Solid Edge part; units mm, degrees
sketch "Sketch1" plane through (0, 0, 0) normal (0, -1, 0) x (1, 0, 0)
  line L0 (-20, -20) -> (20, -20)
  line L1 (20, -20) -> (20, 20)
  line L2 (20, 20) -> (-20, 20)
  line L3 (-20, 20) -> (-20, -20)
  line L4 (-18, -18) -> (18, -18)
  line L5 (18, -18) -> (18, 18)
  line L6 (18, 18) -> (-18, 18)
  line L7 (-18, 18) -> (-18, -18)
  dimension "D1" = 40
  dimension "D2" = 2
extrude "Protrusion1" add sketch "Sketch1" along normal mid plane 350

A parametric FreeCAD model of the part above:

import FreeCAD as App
import Part
import Sketcher

V = App.Vector
Q = App.Units.Quantity


def add_polygon(sketch, points):
    """Adds a closed chain of lines whose ends are joined by coincident constraints."""
    first, n = sketch.GeometryCount, len(points)
    for a, b in zip(points, points[1:] + points[:1]):
        sketch.addGeometry(Part.LineSegment(App.Vector(*a, 0), App.Vector(*b, 0)), False)
    for i in range(n):
        sketch.addConstraint(Sketcher.Constraint("Coincident", first + i, 2, first + (i + 1) % n, 1))

doc = App.newDocument("Part")
body = doc.addObject("PartDesign::Body", "Body")

# Sketch on XZ plane
sketch1 = body.newObject("Sketcher::SketchObject", "Sketch")
sketch1.AttachmentSupport = (doc.getObject("XZ_Plane"), [""])
sketch1.MapMode = "FlatFace"
add_polygon(sketch1, [(-20, 20), (-20, -20), (20, -20), (20, 20)])  # lines 0-3
add_polygon(sketch1, [(18, -18), (-18, -18), (-18, 18), (18, 18)])  # lines 4-7
sketch1.addConstraint(Sketcher.Constraint("Vertical", 0))
sketch1.addConstraint(Sketcher.Constraint("Horizontal", 1))
sketch1.addConstraint(Sketcher.Constraint("Vertical", 2))
sketch1.addConstraint(Sketcher.Constraint("Horizontal", 3))
sketch1.addConstraint(Sketcher.Constraint("Horizontal", 4))
sketch1.addConstraint(Sketcher.Constraint("Vertical", 5))
sketch1.addConstraint(Sketcher.Constraint("Horizontal", 6))
sketch1.addConstraint(Sketcher.Constraint("Vertical", 7))
sketch1.addConstraint(Sketcher.Constraint("Symmetric", 0, 2, 2, 2, -1, 1))
sketch1.addConstraint(Sketcher.Constraint("Symmetric", 4, 2, 6, 2, -1, 1))
sketch1.addConstraint(Sketcher.Constraint("Equal", 3, 0))
sketch1.addConstraint(Sketcher.Constraint("Equal", 6, 5))
sketch1.addConstraint(Sketcher.Constraint("DistanceX", 0, 2, -1, 1, Q("20 mm")))
sketch1.addConstraint(Sketcher.Constraint("DistanceX", 4, 2, 4, 1, Q("36 mm")))
pad1 = body.newObject("PartDesign::Pad", "Pad")
pad1.Profile = sketch1
pad1.Length = 350
pad1.Midplane = True

doc.recompute()
